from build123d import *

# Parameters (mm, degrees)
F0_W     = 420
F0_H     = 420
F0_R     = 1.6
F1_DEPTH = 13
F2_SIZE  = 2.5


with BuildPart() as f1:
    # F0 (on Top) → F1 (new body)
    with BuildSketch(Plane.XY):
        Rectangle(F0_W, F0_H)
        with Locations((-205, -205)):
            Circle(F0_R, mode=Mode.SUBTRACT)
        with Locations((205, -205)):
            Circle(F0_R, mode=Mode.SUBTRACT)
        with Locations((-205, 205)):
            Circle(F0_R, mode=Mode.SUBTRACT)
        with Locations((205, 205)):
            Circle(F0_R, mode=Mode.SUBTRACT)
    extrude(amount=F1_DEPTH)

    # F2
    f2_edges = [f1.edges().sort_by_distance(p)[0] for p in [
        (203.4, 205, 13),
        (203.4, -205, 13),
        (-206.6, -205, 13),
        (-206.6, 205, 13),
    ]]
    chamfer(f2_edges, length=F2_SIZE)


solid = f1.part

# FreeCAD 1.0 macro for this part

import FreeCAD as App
import Part
import Sketcher

V = App.Vector
Q = App.Units.Quantity


def edges_at(feature, points):
    """Names of the edges that pass closest to the given points."""
    edges = feature.Shape.Edges
    near = lambda p: min(range(len(edges)), key=lambda i: edges[i].distToShape(Part.Vertex(*p))[0])
    return sorted({f"Edge{near(p) + 1}" for p in points})


def add_polygon(sketch, points):
    """Adds a closed chain of lines whose ends are joined by coincident constraints."""
    first, n = sketch.GeometryCount, len(points)
    for a, b in zip(points, points[1:] + points[:1]):
        sketch.addGeometry(Part.LineSegment(App.Vector(*a, 0), App.Vector(*b, 0)), False)
    for i in range(n):
        sketch.addConstraint(Sketcher.Constraint("Coincident", first + i, 2, first + (i + 1) % n, 1))

doc = App.newDocument("Part")
body = doc.addObject("PartDesign::Body", "Body")

# Sketch on XY plane
sketch1 = doc.addObject("Sketcher::SketchObject", "Sketch")
body.addObject(sketch1)
sketch1.AttachmentSupport = (doc.XY_Plane, [""])
sketch1.MapMode = "FlatFace"
add_polygon(sketch1, [(-210, 210), (-210, -210), (210, -210), (210, 210)])  # lines 0-3
sketch1.addGeometry(Part.Circle(V(-205, -205, 0), V(0, 0, 1), 1.6), False)  # 4
sketch1.addGeometry(Part.Circle(V(205, -205, 0), V(0, 0, 1), 1.6), False)  # 5
sketch1.addGeometry(Part.Circle(V(-205, 205, 0), V(0, 0, 1), 1.6), False)  # 6
sketch1.addGeometry(Part.Circle(V(205, 205, 0), V(0, 0, 1), 1.6), False)  # 7
sketch1.addConstraint([
    Sketcher.Constraint("Vertical", 0),
    Sketcher.Constraint("Horizontal", 1),
    Sketcher.Constraint("Vertical", 2),
    Sketcher.Constraint("Horizontal", 3),
    Sketcher.Constraint("Equal", 4, 5),
    Sketcher.Constraint("Equal", 5, 6),
    Sketcher.Constraint("Equal", 6, 7),
    Sketcher.Constraint("Symmetric", 5, 3, 6, 3, -1, 1),
    Sketcher.Constraint("Symmetric", 4, 3, 7, 3, -1, 1),
    Sketcher.Constraint("Symmetric", 0, 2, 2, 2, -1, 1),
    Sketcher.Constraint("Symmetric", 4, 3, 5, 3, -2),
    Sketcher.Constraint("Equal", 3, 0),
    Sketcher.Constraint("Diameter", 4, Q("3.2 mm")),
    Sketcher.Constraint("DistanceX", 1, 1, 1, 2, Q("420 mm")),
    Sketcher.Constraint("DistanceX", 4, 3, -1, 1, Q("205 mm")),
    Sketcher.Constraint("DistanceY", 4, 3, -1, 1, Q("205 mm")),
])
pad1 = doc.addObject("PartDesign::Pad", "Pad")
body.addObject(pad1)
pad1.Profile = sketch1
pad1.Length = 13
doc.recompute()

chamfer = doc.addObject("PartDesign::Chamfer", "Chamfer")
body.addObject(chamfer)
chamfer.Base = (pad1, edges_at(pad1, [
    (203.4, 205, 13),
    (203.4, -205, 13),
    (-206.6, -205, 13),
    (-206.6, 205, 13),
]))
chamfer.Size = 2.5

doc.recompute()
